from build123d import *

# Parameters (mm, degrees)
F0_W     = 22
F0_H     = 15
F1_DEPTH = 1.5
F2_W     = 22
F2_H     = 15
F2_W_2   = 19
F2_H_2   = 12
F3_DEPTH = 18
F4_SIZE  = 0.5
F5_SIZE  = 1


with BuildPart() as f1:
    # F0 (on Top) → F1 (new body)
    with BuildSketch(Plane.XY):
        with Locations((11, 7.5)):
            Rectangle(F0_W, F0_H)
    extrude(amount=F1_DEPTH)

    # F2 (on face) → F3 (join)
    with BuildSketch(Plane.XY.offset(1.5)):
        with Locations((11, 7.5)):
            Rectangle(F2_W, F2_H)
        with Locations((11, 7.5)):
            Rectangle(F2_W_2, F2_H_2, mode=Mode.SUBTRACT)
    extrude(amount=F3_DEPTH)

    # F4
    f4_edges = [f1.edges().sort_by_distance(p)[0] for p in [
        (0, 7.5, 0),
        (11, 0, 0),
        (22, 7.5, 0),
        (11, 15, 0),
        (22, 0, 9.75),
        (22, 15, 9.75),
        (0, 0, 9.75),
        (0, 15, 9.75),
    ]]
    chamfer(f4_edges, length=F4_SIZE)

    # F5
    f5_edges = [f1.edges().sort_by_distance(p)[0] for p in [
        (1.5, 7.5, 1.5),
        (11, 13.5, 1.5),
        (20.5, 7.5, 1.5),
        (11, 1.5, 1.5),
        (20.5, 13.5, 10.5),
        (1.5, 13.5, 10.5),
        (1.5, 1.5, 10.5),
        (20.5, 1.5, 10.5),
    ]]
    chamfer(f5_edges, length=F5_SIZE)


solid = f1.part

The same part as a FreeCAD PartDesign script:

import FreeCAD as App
import Part
import Sketcher
from FreeCAD import Vector


def edges_at(feature, points):
    """Names of the edges that pass closest to the given points."""
    edges = feature.Shape.Edges
    near = lambda p: min(range(len(edges)), key=lambda i: edges[i].distToShape(Part.Vertex(*p))[0])
    return sorted({f"Edge{near(p) + 1}" for p in points})


def add_polygon(sketch, points):
    """Adds a closed chain of lines whose ends are joined by coincident constraints."""
    first, n = sketch.GeometryCount, len(points)
    for a, b in zip(points, points[1:] + points[:1]):
        sketch.addGeometry(Part.LineSegment(App.Vector(*a, 0), App.Vector(*b, 0)), False)
    for i in range(n):
        sketch.addConstraint(Sketcher.Constraint("Coincident", first + i, 2, first + (i + 1) % n, 1))

doc = App.newDocument("Part")
body = doc.addObject("PartDesign::Body", "Body")

sketch1 = body.newObject("Sketcher::SketchObject", "Sketch")
sketch1.AttachmentSupport = (doc.getObject("XY_Plane"), [""])
sketch1.MapMode = "FlatFace"
add_polygon(sketch1, [(0, 15), (0, 0), (22, 0), (22, 15)])
sketch1.addConstraint([
    Sketcher.Constraint("Vertical", 0),
    Sketcher.Constraint("Horizontal", 1),
    Sketcher.Constraint("Vertical", 2),
    Sketcher.Constraint("Horizontal", 3),
    Sketcher.Constraint("Coincident", 0, 2, -1, 1),
    Sketcher.Constraint("DistanceX", 1, 1, 1, 2, 22.0),
    Sketcher.Constraint("DistanceY", 0, 2, 0, 1, 15.0),
])
pad1 = body.newObject("PartDesign::Pad", "Pad")
pad1.Profile = sketch1
pad1.Length = 1.5

sketch2 = body.newObject("Sketcher::SketchObject", "Sketch001")
sketch2.AttachmentSupport = (doc.getObject("XY_Plane"), [""])
sketch2.MapMode = "FlatFace"
sketch2.AttachmentOffset = App.Placement(Vector(0, 0, 1.5), App.Rotation())
add_polygon(sketch2, [(0, 15), (0, 0), (22, 0), (22, 15)])
add_polygon(sketch2, [(20, 2), (2, 2), (2, 14), (20, 14)])
sketch2.addConstraint([
    Sketcher.Constraint("Vertical", 0),
    Sketcher.Constraint("Horizontal", 1),
    Sketcher.Constraint("Vertical", 2),
    Sketcher.Constraint("Horizontal", 3),
    Sketcher.Constraint("Horizontal", 4),
    Sketcher.Constraint("Vertical", 5),
    Sketcher.Constraint("Horizontal", 6),
    Sketcher.Constraint("Vertical", 7),
    Sketcher.Constraint("Coincident", 0, 2, -1, 1),
    Sketcher.Constraint("DistanceX", 1, 1, 1, 2, 22.0),
    Sketcher.Constraint("DistanceX", 4, 2, 4, 1, 19.0),
    Sketcher.Constraint("DistanceY", 0, 2, 0, 1, 15.0),
    Sketcher.Constraint("DistanceY", 5, 1, 5, 2, 12.0),
    Sketcher.Constraint("DistanceX", -1, 1, 4, 2, 1.5),
    Sketcher.Constraint("DistanceY", -1, 1, 4, 2, 1.5),
])
pad2 = body.newObject("PartDesign::Pad", "Pad001")
pad2.Profile = sketch2
pad2.Length = 18
doc.recompute()

chamfer = body.newObject("PartDesign::Chamfer", "Chamfer")
chamfer.Base = (pad2, edges_at(pad2, [
    (0, 7.5, 0),
    (11, 0, 0),
    (22, 7.5, 0),
    (11, 15, 0),
    (22, 0, 9.75),
    (22, 15, 9.75),
    (0, 0, 9.75),
    (0, 15, 9.75),
]))
chamfer.Size = 0.5
doc.recompute()

chamfer2 = body.newObject("PartDesign::Chamfer", "Chamfer001")
chamfer2.Base = (chamfer, edges_at(chamfer, [
    (1.5, 7.5, 1.5),
    (11, 13.5, 1.5),
    (20.5, 7.5, 1.5),
    (11, 1.5, 1.5),
    (20.5, 13.5, 10.5),
    (1.5, 13.5, 10.5),
    (1.5, 1.5, 10.5),
    (20.5, 1.5, 10.5),
]))
chamfer2.Size = 1

doc.recompute()
